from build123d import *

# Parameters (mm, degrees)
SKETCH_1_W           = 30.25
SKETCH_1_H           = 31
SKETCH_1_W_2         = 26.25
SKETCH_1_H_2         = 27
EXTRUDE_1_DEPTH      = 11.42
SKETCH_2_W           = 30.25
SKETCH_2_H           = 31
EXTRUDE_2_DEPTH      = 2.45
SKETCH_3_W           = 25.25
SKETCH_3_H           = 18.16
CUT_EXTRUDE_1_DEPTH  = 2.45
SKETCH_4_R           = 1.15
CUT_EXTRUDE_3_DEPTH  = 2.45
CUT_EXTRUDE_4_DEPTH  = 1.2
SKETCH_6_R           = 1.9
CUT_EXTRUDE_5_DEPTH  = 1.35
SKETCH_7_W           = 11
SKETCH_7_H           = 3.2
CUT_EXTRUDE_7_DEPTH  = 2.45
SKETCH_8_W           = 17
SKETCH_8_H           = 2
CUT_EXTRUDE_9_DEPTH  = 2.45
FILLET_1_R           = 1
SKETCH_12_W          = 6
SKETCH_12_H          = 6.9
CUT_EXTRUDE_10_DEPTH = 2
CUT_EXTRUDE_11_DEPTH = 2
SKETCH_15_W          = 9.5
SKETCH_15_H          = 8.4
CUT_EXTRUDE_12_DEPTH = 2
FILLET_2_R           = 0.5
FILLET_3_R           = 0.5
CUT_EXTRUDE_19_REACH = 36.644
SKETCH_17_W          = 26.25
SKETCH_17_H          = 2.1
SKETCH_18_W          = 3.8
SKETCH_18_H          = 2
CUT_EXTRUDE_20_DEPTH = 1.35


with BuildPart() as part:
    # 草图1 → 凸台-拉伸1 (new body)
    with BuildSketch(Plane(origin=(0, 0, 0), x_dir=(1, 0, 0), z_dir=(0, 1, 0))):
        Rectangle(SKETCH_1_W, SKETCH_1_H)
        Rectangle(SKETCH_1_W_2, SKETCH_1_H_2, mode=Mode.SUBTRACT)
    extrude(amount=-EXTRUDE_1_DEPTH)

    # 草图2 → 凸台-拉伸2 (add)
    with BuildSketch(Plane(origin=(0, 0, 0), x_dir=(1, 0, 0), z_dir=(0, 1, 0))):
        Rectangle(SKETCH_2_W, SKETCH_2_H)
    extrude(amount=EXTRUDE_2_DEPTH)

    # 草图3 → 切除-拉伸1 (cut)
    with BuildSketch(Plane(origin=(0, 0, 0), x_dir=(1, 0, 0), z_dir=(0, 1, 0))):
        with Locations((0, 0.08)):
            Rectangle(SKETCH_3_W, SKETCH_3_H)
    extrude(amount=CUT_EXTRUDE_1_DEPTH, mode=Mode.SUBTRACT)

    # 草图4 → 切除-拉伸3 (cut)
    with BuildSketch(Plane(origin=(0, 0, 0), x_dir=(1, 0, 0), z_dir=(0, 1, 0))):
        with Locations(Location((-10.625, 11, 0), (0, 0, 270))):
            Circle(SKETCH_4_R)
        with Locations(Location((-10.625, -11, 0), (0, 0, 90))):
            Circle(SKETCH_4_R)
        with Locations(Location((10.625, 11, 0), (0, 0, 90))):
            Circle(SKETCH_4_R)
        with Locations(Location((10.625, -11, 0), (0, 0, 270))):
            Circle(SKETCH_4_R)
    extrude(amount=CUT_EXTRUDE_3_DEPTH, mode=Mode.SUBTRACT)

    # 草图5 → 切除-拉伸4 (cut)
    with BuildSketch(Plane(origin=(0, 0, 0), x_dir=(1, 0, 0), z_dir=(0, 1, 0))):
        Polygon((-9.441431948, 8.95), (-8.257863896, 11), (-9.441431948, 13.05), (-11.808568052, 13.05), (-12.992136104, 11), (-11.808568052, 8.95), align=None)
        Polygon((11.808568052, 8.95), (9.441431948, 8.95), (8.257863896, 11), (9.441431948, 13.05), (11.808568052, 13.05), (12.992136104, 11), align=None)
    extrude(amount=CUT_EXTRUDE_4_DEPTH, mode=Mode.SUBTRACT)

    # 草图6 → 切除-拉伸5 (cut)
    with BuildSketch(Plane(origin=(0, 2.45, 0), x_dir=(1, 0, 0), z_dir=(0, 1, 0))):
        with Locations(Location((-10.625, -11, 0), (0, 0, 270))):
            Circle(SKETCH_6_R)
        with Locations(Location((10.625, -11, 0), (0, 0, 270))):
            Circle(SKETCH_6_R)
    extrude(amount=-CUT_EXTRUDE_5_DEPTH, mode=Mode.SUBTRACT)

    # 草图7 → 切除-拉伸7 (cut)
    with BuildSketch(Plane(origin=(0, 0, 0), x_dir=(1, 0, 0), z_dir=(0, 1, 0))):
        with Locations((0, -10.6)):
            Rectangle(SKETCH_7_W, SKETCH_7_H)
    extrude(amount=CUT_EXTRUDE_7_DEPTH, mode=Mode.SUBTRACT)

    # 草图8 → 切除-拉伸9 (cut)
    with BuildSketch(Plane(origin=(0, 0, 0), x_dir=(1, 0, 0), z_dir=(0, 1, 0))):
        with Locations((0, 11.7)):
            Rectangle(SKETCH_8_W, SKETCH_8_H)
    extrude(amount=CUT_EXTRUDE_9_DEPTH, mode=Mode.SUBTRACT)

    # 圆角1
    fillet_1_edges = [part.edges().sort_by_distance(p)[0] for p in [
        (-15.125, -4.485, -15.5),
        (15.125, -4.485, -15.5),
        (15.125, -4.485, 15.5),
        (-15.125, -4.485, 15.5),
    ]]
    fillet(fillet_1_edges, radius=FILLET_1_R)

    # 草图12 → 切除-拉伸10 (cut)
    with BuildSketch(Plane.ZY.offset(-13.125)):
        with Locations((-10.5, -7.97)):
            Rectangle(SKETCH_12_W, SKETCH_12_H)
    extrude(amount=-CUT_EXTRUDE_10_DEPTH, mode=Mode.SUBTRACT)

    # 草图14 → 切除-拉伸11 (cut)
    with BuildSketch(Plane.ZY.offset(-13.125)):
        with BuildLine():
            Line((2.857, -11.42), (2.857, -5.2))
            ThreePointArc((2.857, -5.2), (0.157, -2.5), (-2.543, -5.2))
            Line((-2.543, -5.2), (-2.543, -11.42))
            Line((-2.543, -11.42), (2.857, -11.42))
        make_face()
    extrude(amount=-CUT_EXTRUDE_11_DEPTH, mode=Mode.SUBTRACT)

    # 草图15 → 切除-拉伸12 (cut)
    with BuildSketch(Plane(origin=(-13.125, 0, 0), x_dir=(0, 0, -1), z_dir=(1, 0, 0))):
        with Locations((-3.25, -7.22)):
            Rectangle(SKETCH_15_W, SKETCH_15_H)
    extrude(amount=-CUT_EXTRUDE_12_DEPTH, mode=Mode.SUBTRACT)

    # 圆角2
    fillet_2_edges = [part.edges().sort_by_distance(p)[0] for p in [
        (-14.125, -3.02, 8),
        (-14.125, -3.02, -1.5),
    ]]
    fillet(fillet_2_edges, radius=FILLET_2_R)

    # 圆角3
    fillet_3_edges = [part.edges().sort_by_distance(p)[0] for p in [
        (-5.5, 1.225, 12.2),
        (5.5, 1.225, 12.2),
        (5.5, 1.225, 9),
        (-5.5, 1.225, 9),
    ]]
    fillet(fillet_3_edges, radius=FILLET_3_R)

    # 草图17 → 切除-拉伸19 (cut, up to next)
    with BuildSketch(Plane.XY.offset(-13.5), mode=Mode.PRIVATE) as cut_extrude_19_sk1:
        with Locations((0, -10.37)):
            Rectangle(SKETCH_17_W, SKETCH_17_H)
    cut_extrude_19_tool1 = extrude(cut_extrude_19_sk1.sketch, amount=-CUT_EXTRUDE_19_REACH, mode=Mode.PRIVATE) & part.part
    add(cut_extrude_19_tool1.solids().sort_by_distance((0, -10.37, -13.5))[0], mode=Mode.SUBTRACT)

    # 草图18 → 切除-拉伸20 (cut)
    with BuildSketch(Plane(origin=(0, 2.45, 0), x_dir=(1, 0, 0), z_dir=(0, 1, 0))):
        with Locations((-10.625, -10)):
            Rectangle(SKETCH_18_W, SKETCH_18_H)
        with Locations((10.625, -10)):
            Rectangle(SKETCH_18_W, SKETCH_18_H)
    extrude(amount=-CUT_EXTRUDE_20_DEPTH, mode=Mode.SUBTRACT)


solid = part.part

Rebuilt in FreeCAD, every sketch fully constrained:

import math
import FreeCAD as App
import Part
import Sketcher

V = App.Vector
Q = App.Units.Quantity


def edges_at(feature, points):
    """Names of the edges that pass closest to the given points."""
    edges = feature.Shape.Edges
    near = lambda p: min(range(len(edges)), key=lambda i: edges[i].distToShape(Part.Vertex(*p))[0])
    return sorted({f"Edge{near(p) + 1}" for p in points})


def add_polygon(sketch, points):
    """Adds a closed chain of lines whose ends are joined by coincident constraints."""
    first, n = sketch.GeometryCount, len(points)
    for a, b in zip(points, points[1:] + points[:1]):
        sketch.addGeometry(Part.LineSegment(App.Vector(*a, 0), App.Vector(*b, 0)), False)
    for i in range(n):
        sketch.addConstraint(Sketcher.Constraint("Coincident", first + i, 2, first + (i + 1) % n, 1))

doc = App.newDocument("Part")
body = doc.addObject("PartDesign::Body", "Body")

# Sketch on XZ plane
sketch1 = body.newObject("Sketcher::SketchObject", "Sketch")
sketch1.AttachmentSupport = (doc.getObject("XZ_Plane"), [""])
sketch1.MapMode = "FlatFace"
add_polygon(sketch1, [(-15, -16), (-15, 16), (15, 16), (15, -16)])  # lines 0-3
add_polygon(sketch1, [(13, 14), (-13, 14), (-13, -14), (13, -14)])  # lines 4-7
sketch1.addConstraint([
    Sketcher.Constraint("Vertical", 0),
    Sketcher.Constraint("Horizontal", 1),
    Sketcher.Constraint("Vertical", 2),
    Sketcher.Constraint("Horizontal", 3),
    Sketcher.Constraint("Horizontal", 4),
    Sketcher.Constraint("Vertical", 5),
    Sketcher.Constraint("Horizontal", 6),
    Sketcher.Constraint("Vertical", 7),
    Sketcher.Constraint("Symmetric", 0, 2, 2, 2, -1, 1),
    Sketcher.Constraint("Symmetric", 4, 2, 6, 2, -1, 1),
    Sketcher.Constraint("DistanceY", 0, 1, 0, 2, 31.0),
    Sketcher.Constraint("DistanceY", 5, 2, 5, 1, 27.0),
    Sketcher.Constraint("DistanceX", 0, 2, 4, 2, 2.0),
    Sketcher.Constraint("DistanceX", 1, 1, 1, 2, 30.25),
])
pad1 = body.newObject("PartDesign::Pad", "Pad")
pad1.Profile = sketch1
pad1.Length = 11.42

# Sketch on XZ plane
sketch2 = body.newObject("Sketcher::SketchObject", "Sketch001")
sketch2.AttachmentSupport = (doc.getObject("XZ_Plane"), [""])
sketch2.MapMode = "FlatFace"
add_polygon(sketch2, [(-15, -16), (-15, 16), (15, 16), (15, -16)])  # lines 0-3
sketch2.addConstraint([
    Sketcher.Constraint("Vertical", 0),
    Sketcher.Constraint("Horizontal", 1),
    Sketcher.Constraint("Vertical", 2),
    Sketcher.Constraint("Horizontal", 3),
    Sketcher.Constraint("Symmetric", 0, 2, 2, 2, -1, 1),
    Sketcher.Constraint("DistanceY", 0, 1, 0, 2, 31.0),
    Sketcher.Constraint("DistanceX", 1, 1, 1, 2, 30.25),
])
pad2 = body.newObject("PartDesign::Pad", "Pad001")
pad2.Profile = sketch2
pad2.Length = 2.45
pad2.Reversed = True

# Sketch on XZ plane
sketch3 = body.newObject("Sketcher::SketchObject", "Sketch002")
sketch3.AttachmentSupport = (doc.getObject("XZ_Plane"), [""])
sketch3.MapMode = "FlatFace"
add_polygon(sketch3, [(-13, -9), (-13, 9), (13, 9), (13, -9)])  # lines 0-3
sketch3.addConstraint([
    Sketcher.Constraint("Vertical", 0),
    Sketcher.Constraint("Horizontal", 1),
    Sketcher.Constraint("Vertical", 2),
    Sketcher.Constraint("Horizontal", 3),
    Sketcher.Constraint("DistanceY", -1, 1, 0, 2, 9.0),
    Sketcher.Constraint("DistanceX", 1, 1, 1, 2, 25.25),
    Sketcher.Constraint("DistanceY", 0, 1, 0, 2, 18.16),
    Sketcher.Constraint("DistanceX", 0, 2, -1, 1, 12.625),
])
pocket1 = body.newObject("PartDesign::Pocket", "Pocket")
pocket1.Profile = sketch3
pocket1.Length = 2.45

# Sketch on XZ plane
sketch4 = body.newObject("Sketcher::SketchObject", "Sketch003")
sketch4.AttachmentSupport = (doc.getObject("XZ_Plane"), [""])
sketch4.MapMode = "FlatFace"
sketch4.addGeometry([
    Part.Circle(V(-10.6, -11, 0), V(0, 0, 1), 1.1),
    Part.Circle(V(-10.6, 11, 0), V(0, 0, 1), 1.1),
    Part.Circle(V(10.6, -11, 0), V(0, 0, 1), 1.1),
    Part.Circle(V(10.6, 11, 0), V(0, 0, 1), 1.1),
], False)
sketch4.addConstraint([
    Sketcher.Constraint("Equal", 0, 1),
    Sketcher.Constraint("Equal", 1, 2),
    Sketcher.Constraint("Equal", 2, 3),
    Sketcher.Constraint("Symmetric", 1, 3, 2, 3, -1, 1),
    Sketcher.Constraint("Symmetric", 0, 3, 3, 3, -1, 1),
    Sketcher.Constraint("Symmetric", 0, 3, 2, 3, -2),
    Sketcher.Constraint("Diameter", 0, 2.3),
    Sketcher.Constraint("DistanceY", 0, 3, -1, 1, 11.0),
    Sketcher.Constraint("DistanceX", 0, 3, 2, 3, 21.25),
])
pocket2 = body.newObject("PartDesign::Pocket", "Pocket001")
pocket2.Profile = sketch4
pocket2.Length = 2.45

# Sketch on XZ plane
sketch5 = body.newObject("Sketcher::SketchObject", "Sketch004")
sketch5.AttachmentSupport = (doc.getObject("XZ_Plane"), [""])
sketch5.MapMode = "FlatFace"
add_polygon(sketch5, [(-9.4, -8.9), (-8.3, -11), (-9.4, -13.1), (-11.8, -13.1), (-13, -11), (-11.8, -8.9)])  # lines 0-5
add_polygon(sketch5, [(9.4, -8.9), (11.8, -8.9), (13, -11), (11.8, -13.1), (9.4, -13.1), (8.3, -11)])  # lines 6-11
sketch5.addConstraint([
    Sketcher.Constraint("Horizontal", 2),
    Sketcher.Constraint("Horizontal", 5),
    Sketcher.Constraint("Horizontal", 6),
    Sketcher.Constraint("Horizontal", 9),
    Sketcher.Constraint("Symmetric", 4, 2, 6, 2, -2),
    Sketcher.Constraint("Symmetric", 3, 2, 7, 2, -2),
    Sketcher.Constraint("Symmetric", 2, 2, 8, 2, -2),
    Sketcher.Constraint("Symmetric", 0, 2, 10, 2, -2),
    Sketcher.Constraint("Parallel", 0, 3),
    Sketcher.Constraint("Parallel", 1, 4),
    Sketcher.Constraint("Parallel", 3, 7),
    Sketcher.Constraint("Parallel", 7, 10),
    Sketcher.Constraint("Parallel", 8, 11),
    Sketcher.Constraint("Horizontal", 0, 2, 3, 2),
    Sketcher.Constraint("Vertical", 2, 2, 4, 2),
    Sketcher.Constraint("Angle", 0, Q("-60 deg")),
    Sketcher.Constraint("DistanceY", 0, 2, -1, 1, 11.0),
    Sketcher.Constraint("DistanceY", 2, 2, 4, 2, 4.1),
    Sketcher.Constraint("DistanceX", 5, 2, 6, 2, 21.25),
    Sketcher.Constraint("DistanceX", 2, 2, 2, 1, 2.367136),
])
pocket3 = body.newObject("PartDesign::Pocket", "Pocket002")
pocket3.Profile = sketch5
pocket3.Length = 1.2

# Sketch on XZ plane
sketch6 = body.newObject("Sketcher::SketchObject", "Sketch005")
sketch6.AttachmentSupport = (doc.getObject("XZ_Plane"), [""])
sketch6.MapMode = "FlatFace"
sketch6.AttachmentOffset = App.Placement(V(0, 0, -2.45), App.Rotation())
sketch6.addGeometry([
    Part.Circle(V(-10.6, 11, 0), V(0, 0, 1), 1.9),
    Part.Circle(V(10.6, 11, 0), V(0, 0, 1), 1.9),
], False)
sketch6.addConstraint([
    Sketcher.Constraint("Equal", 0, 1),
    Sketcher.Constraint("Symmetric", 0, 3, 1, 3, -2),
    Sketcher.Constraint("Diameter", 0, 3.8),
    Sketcher.Constraint("DistanceY", -1, 1, 0, 3, 11.0),
    Sketcher.Constraint("DistanceX", 0, 3, 1, 3, 21.25),
])
pocket4 = body.newObject("PartDesign::Pocket", "Pocket003")
pocket4.Profile = sketch6
pocket4.Length = 1.35
pocket4.Reversed = True

# Sketch on XZ plane
sketch7 = body.newObject("Sketcher::SketchObject", "Sketch006")
sketch7.AttachmentSupport = (doc.getObject("XZ_Plane"), [""])
sketch7.MapMode = "FlatFace"
add_polygon(sketch7, [(-5.5, 9), (-5.5, 12.2), (5.5, 12.2), (5.5, 9)])  # lines 0-3
sketch7.addConstraint([
    Sketcher.Constraint("Vertical", 0),
    Sketcher.Constraint("Horizontal", 1),
    Sketcher.Constraint("Vertical", 2),
    Sketcher.Constraint("Horizontal", 3),
    Sketcher.Constraint("DistanceX", 1, 1, 1, 2, 11.0),
    Sketcher.Constraint("DistanceY", 0, 1, 0, 2, 3.2),
    Sketcher.Constraint("DistanceY", -1, 1, 2, 2, 9.0),
    Sketcher.Constraint("DistanceX", 0, 2, -1, 1, 5.5),
])
pocket5 = body.newObject("PartDesign::Pocket", "Pocket004")
pocket5.Profile = sketch7
pocket5.Length = 2.45

# Sketch on XZ plane
sketch8 = body.newObject("Sketcher::SketchObject", "Sketch007")
sketch8.AttachmentSupport = (doc.getObject("XZ_Plane"), [""])
sketch8.MapMode = "FlatFace"
add_polygon(sketch8, [(-8.5, -12.7), (-8.5, -10.7), (8.5, -10.7), (8.5, -12.7)])  # lines 0-3
sketch8.addConstraint([
    Sketcher.Constraint("Vertical", 0),
    Sketcher.Constraint("Horizontal", 1),
    Sketcher.Constraint("Vertical", 2),
    Sketcher.Constraint("Horizontal", 3),
    Sketcher.Constraint("DistanceX", 1, 1, 1, 2, 17.0),
    Sketcher.Constraint("DistanceY", 0, 1, 0, 2, 2.0),
    Sketcher.Constraint("DistanceX", 0, 2, -1, 1, 8.5),
    Sketcher.Constraint("DistanceY", 0, 2, -1, 1, 10.7),
])
pocket6 = body.newObject("PartDesign::Pocket", "Pocket005")
pocket6.Profile = sketch8
pocket6.Length = 2.45
doc.recompute()

fillet = body.newObject("PartDesign::Fillet", "Fillet")
fillet.Base = (pocket6, edges_at(pocket6, [
    (-15.125, -4.485, -15.5),
    (15.125, -4.485, -15.5),
    (15.125, -4.485, 15.5),
    (-15.125, -4.485, 15.5),
]))
fillet.Radius = 1

# Sketch on YZ plane
sketch9 = body.newObject("Sketcher::SketchObject", "Sketch008")
sketch9.AttachmentSupport = (doc.getObject("YZ_Plane"), [""])
sketch9.MapMode = "FlatFace"
sketch9.AttachmentOffset = App.Placement(V(0, 0, 13.125), App.Rotation())
add_polygon(sketch9, [(-5, -14), (-11, -14), (-11, -8), (-5, -8)])  # lines 0-3
sketch9.addConstraint([
    Sketcher.Constraint("Horizontal", 0),
    Sketcher.Constraint("Vertical", 1),
    Sketcher.Constraint("Horizontal", 2),
    Sketcher.Constraint("Vertical", 3),
    Sketcher.Constraint("DistanceY", 1, 1, 1, 2, 6.0),
    Sketcher.Constraint("DistanceX", 0, 2, 0, 1, 6.9),
    Sketcher.Constraint("DistanceY", 0, 2, -1, 1, 13.5),
    Sketcher.Constraint("DistanceX", 0, 2, -1, 1, 11.42),
])
pocket7 = body.newObject("PartDesign::Pocket", "Pocket006")
pocket7.Profile = sketch9
pocket7.Length = 2
pocket7.Reversed = True

# Sketch on YZ plane
sketch10 = body.newObject("Sketcher::SketchObject", "Sketch009")
sketch10.AttachmentSupport = (doc.getObject("YZ_Plane"), [""])
sketch10.MapMode = "FlatFace"
sketch10.AttachmentOffset = App.Placement(V(0, 0, 13.125), App.Rotation())
sketch10.addGeometry([
    Part.LineSegment(V(-11.4, 2.9, 0), V(-5.2, 2.9, 0)),
    Part.ArcOfCircle(Part.Circle(V(-5.2, 0.2, 0), V(0, 0, 1), 2.7), math.radians(-90), math.radians(90)),
    Part.LineSegment(V(-5.2, -2.5, 0), V(-11.4, -2.5, 0)),
    Part.LineSegment(V(-11.4, -2.5, 0), V(-11.4, 2.9, 0)),
], False)
sketch10.addConstraint([
    Sketcher.Constraint("Tangent", 0, 2, 1, 2),
    Sketcher.Constraint("Tangent", 1, 1, 2, 1),
    Sketcher.Constraint("Coincident", 2, 2, 3, 1),
    Sketcher.Constraint("Coincident", 3, 2, 0, 1),
    Sketcher.Constraint("Horizontal", 0),
    Sketcher.Constraint("Horizontal", 2),
    Sketcher.Constraint("Vertical", 3),
    Sketcher.Constraint("Radius", 1, 2.7),
    Sketcher.Constraint("DistanceX", 0, 1, 0, 2, 6.22),
    Sketcher.Constraint("DistanceX", 1, 3, -1, 1, 5.2),
    Sketcher.Constraint("DistanceY", -1, 1, 1, 3, 0.157),
])
pocket8 = body.newObject("PartDesign::Pocket", "Pocket007")
pocket8.Profile = sketch10
pocket8.Length = 2
pocket8.Reversed = True

# Sketch on YZ plane
sketch11 = body.newObject("Sketcher::SketchObject", "Sketch010")
sketch11.AttachmentSupport = (doc.getObject("YZ_Plane"), [""])
sketch11.MapMode = "FlatFace"
sketch11.AttachmentOffset = App.Placement(V(0, 0, -13.125), App.Rotation())
add_polygon(sketch11, [(-3, 8), (-11, 8), (-11, -2), (-3, -2)])  # lines 0-3
sketch11.addConstraint([
    Sketcher.Constraint("Horizontal", 0),
    Sketcher.Constraint("Vertical", 1),
    Sketcher.Constraint("Horizontal", 2),
    Sketcher.Constraint("Vertical", 3),
    Sketcher.Constraint("DistanceX", 0, 2, 0, 1, 8.4),
    Sketcher.Constraint("DistanceY", 1, 2, 1, 1, 9.5),
    Sketcher.Constraint("DistanceY", -1, 1, 0, 2, 8.0),
    Sketcher.Constraint("DistanceX", 0, 2, -1, 1, 11.42),
])
pocket9 = body.newObject("PartDesign::Pocket", "Pocket008")
pocket9.Profile = sketch11
pocket9.Length = 2
doc.recompute()

fillet2 = body.newObject("PartDesign::Fillet", "Fillet001")
fillet2.Base = (pocket9, edges_at(pocket9, [(-14.125, -3.02, 8), (-14.125, -3.02, -1.5)]))
fillet2.Radius = 0.5
doc.recompute()

fillet3 = body.newObject("PartDesign::Fillet", "Fillet002")
fillet3.Base = (fillet2, edges_at(fillet2, [
    (-5.5, 1.225, 12.2),
    (5.5, 1.225, 12.2),
    (5.5, 1.225, 9),
    (-5.5, 1.225, 9),
]))
fillet3.Radius = 0.5

# Sketch on XY plane
sketch12 = body.newObject("Sketcher::SketchObject", "Sketch011")
sketch12.AttachmentSupport = (doc.getObject("XY_Plane"), [""])
sketch12.MapMode = "FlatFace"
sketch12.AttachmentOffset = App.Placement(V(0, 0, -13.5), App.Rotation())
add_polygon(sketch12, [(-13.1, -9.3), (-13.1, -11.4), (13.1, -11.4), (13.1, -9.3)])  # lines 0-3
sketch12.addConstraint([
    Sketcher.Constraint("Vertical", 0),
    Sketcher.Constraint("Horizontal", 1),
    Sketcher.Constraint("Vertical", 2),
    Sketcher.Constraint("Horizontal", 3),
    Sketcher.Constraint("DistanceY", 0, 2, 0, 1, 2.1),
    Sketcher.Constraint("DistanceX", 1, 1, 1, 2, 26.25),
    Sketcher.Constraint("DistanceY", 0, 2, -1, 1, 11.42),
    Sketcher.Constraint("DistanceX", 0, 2, -1, 1, 13.125),
])
pocket10 = body.newObject("PartDesign::Pocket", "Pocket009")
pocket10.Profile = sketch12
pocket10.Type = "UpToFirst"

# Sketch on XZ plane
sketch13 = body.newObject("Sketcher::SketchObject", "Sketch012")
sketch13.AttachmentSupport = (doc.getObject("XZ_Plane"), [""])
sketch13.MapMode = "FlatFace"
sketch13.AttachmentOffset = App.Placement(V(0, 0, -2.45), App.Rotation())
add_polygon(sketch13, [(-12.5, 9), (-12.5, 11), (-8.7, 11), (-8.7, 9)])  # lines 0-3
add_polygon(sketch13, [(8.7, 9), (8.7, 11), (12.5, 11), (12.5, 9)])  # lines 4-7
sketch13.addConstraint([
    Sketcher.Constraint("Vertical", 0),
    Sketcher.Constraint("Horizontal", 1),
    Sketcher.Constraint("Vertical", 2),
    Sketcher.Constraint("Horizontal", 3),
    Sketcher.Constraint("Vertical", 4),
    Sketcher.Constraint("Horizontal", 5),
    Sketcher.Constraint("Vertical", 6),
    Sketcher.Constraint("Horizontal", 7),
    Sketcher.Constraint("Symmetric", 1, 2, 4, 2, -2),
    Sketcher.Constraint("Symmetric", 3, 2, 6, 2, -2),
    Sketcher.Constraint("DistanceY", 0, 1, 0, 2, 2.0),
    Sketcher.Constraint("DistanceX", 1, 1, 1, 2, 3.8),
    Sketcher.Constraint("DistanceY", -1, 1, 0, 2, 11.0),
    Sketcher.Constraint("DistanceX", 1, 2, 4, 2, 17.45),
])
pocket11 = body.newObject("PartDesign::Pocket", "Pocket010")
pocket11.Profile = sketch13
pocket11.Length = 1.35
pocket11.Reversed = True

doc.recompute()
